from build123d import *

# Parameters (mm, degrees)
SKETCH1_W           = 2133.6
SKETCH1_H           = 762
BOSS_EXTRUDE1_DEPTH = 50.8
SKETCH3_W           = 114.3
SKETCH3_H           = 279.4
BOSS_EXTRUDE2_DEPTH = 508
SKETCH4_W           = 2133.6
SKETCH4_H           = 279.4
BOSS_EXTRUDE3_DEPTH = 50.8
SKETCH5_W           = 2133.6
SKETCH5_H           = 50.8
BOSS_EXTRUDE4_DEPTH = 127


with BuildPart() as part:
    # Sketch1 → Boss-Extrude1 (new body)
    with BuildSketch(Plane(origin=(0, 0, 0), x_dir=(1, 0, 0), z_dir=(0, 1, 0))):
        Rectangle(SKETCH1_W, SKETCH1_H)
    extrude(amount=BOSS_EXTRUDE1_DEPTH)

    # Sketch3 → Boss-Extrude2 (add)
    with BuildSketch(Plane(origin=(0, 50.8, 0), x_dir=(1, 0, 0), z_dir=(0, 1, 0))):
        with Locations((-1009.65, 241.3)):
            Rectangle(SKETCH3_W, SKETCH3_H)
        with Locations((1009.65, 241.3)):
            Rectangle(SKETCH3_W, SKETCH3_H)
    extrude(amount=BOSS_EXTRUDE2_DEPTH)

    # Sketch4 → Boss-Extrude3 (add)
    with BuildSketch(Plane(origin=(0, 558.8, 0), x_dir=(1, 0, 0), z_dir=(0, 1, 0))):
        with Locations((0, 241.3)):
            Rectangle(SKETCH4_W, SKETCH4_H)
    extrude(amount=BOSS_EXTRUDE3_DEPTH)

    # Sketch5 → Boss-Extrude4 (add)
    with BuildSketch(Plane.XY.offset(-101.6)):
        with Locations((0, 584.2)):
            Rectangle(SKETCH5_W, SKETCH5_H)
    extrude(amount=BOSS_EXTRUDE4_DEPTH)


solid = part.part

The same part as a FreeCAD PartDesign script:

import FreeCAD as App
import Part
import Sketcher

V = App.Vector
Q = App.Units.Quantity


def add_polygon(sketch, points):
    """Adds a closed chain of lines whose ends are joined by coincident constraints."""
    first, n = sketch.GeometryCount, len(points)
    for a, b in zip(points, points[1:] + points[:1]):
        sketch.addGeometry(Part.LineSegment(App.Vector(*a, 0), App.Vector(*b, 0)), False)
    for i in range(n):
        sketch.addConstraint(Sketcher.Constraint("Coincident", first + i, 2, first + (i + 1) % n, 1))

doc = App.newDocument("Part")
params = doc.addObject("Spreadsheet::Sheet", "Params")
for row, (alias, value) in enumerate([
    ("sketch1_width", "84 in"),
    ("sketch1_height", "30 in"),
    ("pad1_length", "2 in"),
    ("sketch2_height", "11 in"),
    ("sketch2_width", "4.5 in"),
    ("pad2_length", "20 in"),
    ("sketch3_width", "84 in"),
    ("sketch3_height", "11 in"),
    ("pad3_length", "2 in"),
    ("sketch4_width", "84 in"),
    ("sketch4_height", "2 in"),
    ("pad4_length", "5 in"),
], start=1):
    params.set(f"A{row}", alias)
    params.set(f"B{row}", "=" + value)
    params.setAlias(f"B{row}", alias)

body = doc.addObject("PartDesign::Body", "Body")

# Sketch on XZ plane
sketch1 = doc.addObject("Sketcher::SketchObject", "Sketch")
body.addObject(sketch1)
sketch1.AttachmentSupport = (doc.XZ_Plane, [""])
sketch1.MapMode = "FlatFace"
add_polygon(sketch1, [(-1066.8, -381), (-1066.8, 381), (1066.8, 381), (1066.8, -381)])  # lines 0-3
sketch1.addConstraint([
    Sketcher.Constraint("Vertical", 0),
    Sketcher.Constraint("Horizontal", 1),
    Sketcher.Constraint("Vertical", 2),
    Sketcher.Constraint("Horizontal", 3),
    Sketcher.Constraint("Symmetric", 0, 2, 2, 2, -1, 1),
    Sketcher.Constraint("DistanceX", 1, 1, 1, 2, Q("84 in")),
    Sketcher.Constraint("DistanceY", 0, 1, 0, 2, Q("30 in")),
])
sketch1.setExpression("Constraints[9]", "Params.sketch1_width")
sketch1.setExpression("Constraints[10]", "Params.sketch1_height")
pad1 = doc.addObject("PartDesign::Pad", "Pad")
body.addObject(pad1)
pad1.Profile = sketch1
pad1.setExpression("Length", "Params.pad1_length")
pad1.Reversed = True

# Sketch on XZ plane
sketch2 = doc.addObject("Sketcher::SketchObject", "Sketch001")
body.addObject(sketch2)
sketch2.AttachmentSupport = (doc.XZ_Plane, [""])
sketch2.MapMode = "FlatFace"
sketch2.AttachmentOffset = App.Placement(V(0, 0, -2 * 25.4), App.Rotation())
add_polygon(sketch2, [(-1066.8, -381), (-1066.8, -101.6), (-952.5, -101.6), (-952.5, -381)])  # lines 0-3
add_polygon(sketch2, [(952.5, -381), (952.5, -101.6), (1066.8, -101.6), (1066.8, -381)])  # lines 4-7
sketch2.addConstraint([
    Sketcher.Constraint("Vertical", 0),
    Sketcher.Constraint("Horizontal", 1),
    Sketcher.Constraint("Vertical", 2),
    Sketcher.Constraint("Horizontal", 3),
    Sketcher.Constraint("Vertical", 4),
    Sketcher.Constraint("Horizontal", 5),
    Sketcher.Constraint("Vertical", 6),
    Sketcher.Constraint("Horizontal", 7),
    Sketcher.Constraint("Symmetric", 1, 2, 4, 2, -2),
    Sketcher.Constraint("Symmetric", 3, 2, 6, 2, -2),
    Sketcher.Constraint("DistanceY", 0, 1, 0, 2, Q("11 in")),
    Sketcher.Constraint("DistanceX", 1, 1, 1, 2, Q("4.5 in")),
    Sketcher.Constraint("DistanceX", 0, 2, -1, 1, Q("42 in")),
    Sketcher.Constraint("DistanceY", 0, 2, -1, 1, Q("4 in")),
])
sketch2.setExpression("Constraints[18]", "Params.sketch2_height")
sketch2.setExpression("Constraints[19]", "Params.sketch2_width")
pad2 = doc.addObject("PartDesign::Pad", "Pad001")
body.addObject(pad2)
pad2.Profile = sketch2
pad2.setExpression("Length", "Params.pad2_length")
pad2.Reversed = True

# Sketch on XZ plane
sketch3 = doc.addObject("Sketcher::SketchObject", "Sketch002")
body.addObject(sketch3)
sketch3.AttachmentSupport = (doc.XZ_Plane, [""])
sketch3.MapMode = "FlatFace"
sketch3.AttachmentOffset = App.Placement(V(0, 0, -22 * 25.4), App.Rotation())
add_polygon(sketch3, [(-1066.8, -381), (-1066.8, -101.6), (1066.8, -101.6), (1066.8, -381)])  # lines 0-3
sketch3.addConstraint([
    Sketcher.Constraint("Vertical", 0),
    Sketcher.Constraint("Horizontal", 1),
    Sketcher.Constraint("Vertical", 2),
    Sketcher.Constraint("Horizontal", 3),
    Sketcher.Constraint("DistanceX", 1, 1, 1, 2, Q("84 in")),
    Sketcher.Constraint("DistanceY", 0, 1, 0, 2, Q("11 in")),
    Sketcher.Constraint("DistanceX", 0, 2, -1, 1, Q("42 in")),
    Sketcher.Constraint("DistanceY", 0, 2, -1, 1, Q("4 in")),
])
sketch3.setExpression("Constraints[8]", "Params.sketch3_width")
sketch3.setExpression("Constraints[9]", "Params.sketch3_height")
pad3 = doc.addObject("PartDesign::Pad", "Pad002")
body.addObject(pad3)
pad3.Profile = sketch3
pad3.setExpression("Length", "Params.pad3_length")
pad3.Reversed = True

# Sketch on XY plane
sketch4 = doc.addObject("Sketcher::SketchObject", "Sketch003")
body.addObject(sketch4)
sketch4.AttachmentSupport = (doc.XY_Plane, [""])
sketch4.MapMode = "FlatFace"
sketch4.AttachmentOffset = App.Placement(V(0, 0, -4 * 25.4), App.Rotation())
add_polygon(sketch4, [(-1066.8, 609.6), (-1066.8, 558.8), (1066.8, 558.8), (1066.8, 609.6)])  # lines 0-3
sketch4.addConstraint([
    Sketcher.Constraint("Vertical", 0),
    Sketcher.Constraint("Horizontal", 1),
    Sketcher.Constraint("Vertical", 2),
    Sketcher.Constraint("Horizontal", 3),
    Sketcher.Constraint("DistanceX", 1, 1, 1, 2, Q("84 in")),
    Sketcher.Constraint("DistanceY", 0, 2, 0, 1, Q("2 in")),
    Sketcher.Constraint("DistanceX", 0, 2, -1, 1, Q("42 in")),
    Sketcher.Constraint("DistanceY", -1, 1, 0, 2, Q("22 in")),
])
sketch4.setExpression("Constraints[8]", "Params.sketch4_width")
sketch4.setExpression("Constraints[9]", "Params.sketch4_height")
pad4 = doc.addObject("PartDesign::Pad", "Pad003")
body.addObject(pad4)
pad4.Profile = sketch4
pad4.setExpression("Length", "Params.pad4_length")

doc.recompute()
